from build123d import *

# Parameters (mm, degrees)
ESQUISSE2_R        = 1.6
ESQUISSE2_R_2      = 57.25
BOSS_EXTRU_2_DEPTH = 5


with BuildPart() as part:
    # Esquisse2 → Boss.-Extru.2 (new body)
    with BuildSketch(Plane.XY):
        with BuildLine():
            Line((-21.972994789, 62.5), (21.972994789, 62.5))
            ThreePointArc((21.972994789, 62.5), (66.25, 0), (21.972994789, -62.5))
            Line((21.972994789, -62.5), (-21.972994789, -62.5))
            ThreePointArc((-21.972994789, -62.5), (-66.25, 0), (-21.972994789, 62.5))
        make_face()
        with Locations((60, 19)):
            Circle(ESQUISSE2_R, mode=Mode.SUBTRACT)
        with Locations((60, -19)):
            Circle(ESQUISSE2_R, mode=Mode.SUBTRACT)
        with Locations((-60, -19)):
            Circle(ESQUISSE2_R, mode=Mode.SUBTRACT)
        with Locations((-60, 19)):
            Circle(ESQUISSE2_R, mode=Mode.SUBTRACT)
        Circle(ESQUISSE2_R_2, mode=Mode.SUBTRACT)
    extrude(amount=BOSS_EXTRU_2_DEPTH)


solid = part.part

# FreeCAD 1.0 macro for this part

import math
import FreeCAD as App
import Part
import Sketcher
Q = App.Units.Quantity

doc = App.newDocument("Part")
body = doc.addObject("PartDesign::Body", "Body")

# Sketch on XY plane
sketch1 = doc.addObject("Sketcher::SketchObject", "Sketch")
body.addObject(sketch1)
sketch1.AttachmentSupport = (doc.XY_Plane, [""])
sketch1.MapMode = "FlatFace"
sketch1.addGeometry([
    Part.LineSegment(App.Vector(21.972995, 62.5, 0), App.Vector(-21.972995, 62.5, 0)),  # 0
    Part.ArcOfCircle(Part.Circle(App.Vector(0, 0, 0), App.Vector(0, 0, 1), 66.25), math.radians(109.370038), math.radians(250.629962)),  # 1
    Part.LineSegment(App.Vector(-21.972995, -62.5, 0), App.Vector(21.972995, -62.5, 0)),  # 2
    Part.ArcOfCircle(Part.Circle(App.Vector(0, 0, 0), App.Vector(0, 0, 1), 66.25), math.radians(-70.629962), math.radians(70.629962)),  # 3
    Part.Circle(App.Vector(60, -19, 0), App.Vector(0, 0, 1), 1.6),  # 4
    Part.Circle(App.Vector(-60, -19, 0), App.Vector(0, 0, 1), 1.6),  # 5
    Part.Circle(App.Vector(60, 19, 0), App.Vector(0, 0, 1), 1.6),  # 6
    Part.Circle(App.Vector(0, 0, 0), App.Vector(0, 0, 1), 57.25),  # 7
    Part.Circle(App.Vector(-60, 19, 0), App.Vector(0, 0, 1), 1.6),  # 8
], False)
sketch1.addConstraint([
    Sketcher.Constraint("Coincident", 0, 2, 1, 1),
    Sketcher.Constraint("Coincident", 1, 2, 2, 1),
    Sketcher.Constraint("Coincident", 2, 2, 3, 1),
    Sketcher.Constraint("Coincident", 3, 2, 0, 1),
    Sketcher.Constraint("Horizontal", 0),
    Sketcher.Constraint("Horizontal", 2),
    Sketcher.Constraint("Coincident", 1, 3, -1, 1),
    Sketcher.Constraint("Coincident", 3, 3, -1, 1),
    Sketcher.Constraint("Coincident", 7, 3, -1, 1),
    Sketcher.Constraint("Equal", 1, 3),
    Sketcher.Constraint("Equal", 4, 5),
    Sketcher.Constraint("Equal", 5, 6),
    Sketcher.Constraint("Equal", 6, 8),
    Sketcher.Constraint("Symmetric", 5, 3, 6, 3, -1, 1),
    Sketcher.Constraint("Symmetric", 4, 3, 8, 3, -1, 1),
    Sketcher.Constraint("Symmetric", 4, 3, 5, 3, -2),
    Sketcher.Constraint("Vertical", 0, 2, 1, 2),
    Sketcher.Constraint("Diameter", 4, Q("3.2 mm")),
    Sketcher.Constraint("Diameter", 7, Q("114.5 mm")),
    Sketcher.Constraint("Radius", 1, Q("66.25 mm")),
    Sketcher.Constraint("DistanceX", -1, 1, 4, 3, Q("60 mm")),
    Sketcher.Constraint("DistanceY", 4, 3, -1, 1, Q("19 mm")),
    Sketcher.Constraint("DistanceY", -1, 1, 0, 2, Q("62.5 mm")),
])
pad1 = doc.addObject("PartDesign::Pad", "Pad")
body.addObject(pad1)
pad1.Profile = sketch1
pad1.Length = 5

doc.recompute()
